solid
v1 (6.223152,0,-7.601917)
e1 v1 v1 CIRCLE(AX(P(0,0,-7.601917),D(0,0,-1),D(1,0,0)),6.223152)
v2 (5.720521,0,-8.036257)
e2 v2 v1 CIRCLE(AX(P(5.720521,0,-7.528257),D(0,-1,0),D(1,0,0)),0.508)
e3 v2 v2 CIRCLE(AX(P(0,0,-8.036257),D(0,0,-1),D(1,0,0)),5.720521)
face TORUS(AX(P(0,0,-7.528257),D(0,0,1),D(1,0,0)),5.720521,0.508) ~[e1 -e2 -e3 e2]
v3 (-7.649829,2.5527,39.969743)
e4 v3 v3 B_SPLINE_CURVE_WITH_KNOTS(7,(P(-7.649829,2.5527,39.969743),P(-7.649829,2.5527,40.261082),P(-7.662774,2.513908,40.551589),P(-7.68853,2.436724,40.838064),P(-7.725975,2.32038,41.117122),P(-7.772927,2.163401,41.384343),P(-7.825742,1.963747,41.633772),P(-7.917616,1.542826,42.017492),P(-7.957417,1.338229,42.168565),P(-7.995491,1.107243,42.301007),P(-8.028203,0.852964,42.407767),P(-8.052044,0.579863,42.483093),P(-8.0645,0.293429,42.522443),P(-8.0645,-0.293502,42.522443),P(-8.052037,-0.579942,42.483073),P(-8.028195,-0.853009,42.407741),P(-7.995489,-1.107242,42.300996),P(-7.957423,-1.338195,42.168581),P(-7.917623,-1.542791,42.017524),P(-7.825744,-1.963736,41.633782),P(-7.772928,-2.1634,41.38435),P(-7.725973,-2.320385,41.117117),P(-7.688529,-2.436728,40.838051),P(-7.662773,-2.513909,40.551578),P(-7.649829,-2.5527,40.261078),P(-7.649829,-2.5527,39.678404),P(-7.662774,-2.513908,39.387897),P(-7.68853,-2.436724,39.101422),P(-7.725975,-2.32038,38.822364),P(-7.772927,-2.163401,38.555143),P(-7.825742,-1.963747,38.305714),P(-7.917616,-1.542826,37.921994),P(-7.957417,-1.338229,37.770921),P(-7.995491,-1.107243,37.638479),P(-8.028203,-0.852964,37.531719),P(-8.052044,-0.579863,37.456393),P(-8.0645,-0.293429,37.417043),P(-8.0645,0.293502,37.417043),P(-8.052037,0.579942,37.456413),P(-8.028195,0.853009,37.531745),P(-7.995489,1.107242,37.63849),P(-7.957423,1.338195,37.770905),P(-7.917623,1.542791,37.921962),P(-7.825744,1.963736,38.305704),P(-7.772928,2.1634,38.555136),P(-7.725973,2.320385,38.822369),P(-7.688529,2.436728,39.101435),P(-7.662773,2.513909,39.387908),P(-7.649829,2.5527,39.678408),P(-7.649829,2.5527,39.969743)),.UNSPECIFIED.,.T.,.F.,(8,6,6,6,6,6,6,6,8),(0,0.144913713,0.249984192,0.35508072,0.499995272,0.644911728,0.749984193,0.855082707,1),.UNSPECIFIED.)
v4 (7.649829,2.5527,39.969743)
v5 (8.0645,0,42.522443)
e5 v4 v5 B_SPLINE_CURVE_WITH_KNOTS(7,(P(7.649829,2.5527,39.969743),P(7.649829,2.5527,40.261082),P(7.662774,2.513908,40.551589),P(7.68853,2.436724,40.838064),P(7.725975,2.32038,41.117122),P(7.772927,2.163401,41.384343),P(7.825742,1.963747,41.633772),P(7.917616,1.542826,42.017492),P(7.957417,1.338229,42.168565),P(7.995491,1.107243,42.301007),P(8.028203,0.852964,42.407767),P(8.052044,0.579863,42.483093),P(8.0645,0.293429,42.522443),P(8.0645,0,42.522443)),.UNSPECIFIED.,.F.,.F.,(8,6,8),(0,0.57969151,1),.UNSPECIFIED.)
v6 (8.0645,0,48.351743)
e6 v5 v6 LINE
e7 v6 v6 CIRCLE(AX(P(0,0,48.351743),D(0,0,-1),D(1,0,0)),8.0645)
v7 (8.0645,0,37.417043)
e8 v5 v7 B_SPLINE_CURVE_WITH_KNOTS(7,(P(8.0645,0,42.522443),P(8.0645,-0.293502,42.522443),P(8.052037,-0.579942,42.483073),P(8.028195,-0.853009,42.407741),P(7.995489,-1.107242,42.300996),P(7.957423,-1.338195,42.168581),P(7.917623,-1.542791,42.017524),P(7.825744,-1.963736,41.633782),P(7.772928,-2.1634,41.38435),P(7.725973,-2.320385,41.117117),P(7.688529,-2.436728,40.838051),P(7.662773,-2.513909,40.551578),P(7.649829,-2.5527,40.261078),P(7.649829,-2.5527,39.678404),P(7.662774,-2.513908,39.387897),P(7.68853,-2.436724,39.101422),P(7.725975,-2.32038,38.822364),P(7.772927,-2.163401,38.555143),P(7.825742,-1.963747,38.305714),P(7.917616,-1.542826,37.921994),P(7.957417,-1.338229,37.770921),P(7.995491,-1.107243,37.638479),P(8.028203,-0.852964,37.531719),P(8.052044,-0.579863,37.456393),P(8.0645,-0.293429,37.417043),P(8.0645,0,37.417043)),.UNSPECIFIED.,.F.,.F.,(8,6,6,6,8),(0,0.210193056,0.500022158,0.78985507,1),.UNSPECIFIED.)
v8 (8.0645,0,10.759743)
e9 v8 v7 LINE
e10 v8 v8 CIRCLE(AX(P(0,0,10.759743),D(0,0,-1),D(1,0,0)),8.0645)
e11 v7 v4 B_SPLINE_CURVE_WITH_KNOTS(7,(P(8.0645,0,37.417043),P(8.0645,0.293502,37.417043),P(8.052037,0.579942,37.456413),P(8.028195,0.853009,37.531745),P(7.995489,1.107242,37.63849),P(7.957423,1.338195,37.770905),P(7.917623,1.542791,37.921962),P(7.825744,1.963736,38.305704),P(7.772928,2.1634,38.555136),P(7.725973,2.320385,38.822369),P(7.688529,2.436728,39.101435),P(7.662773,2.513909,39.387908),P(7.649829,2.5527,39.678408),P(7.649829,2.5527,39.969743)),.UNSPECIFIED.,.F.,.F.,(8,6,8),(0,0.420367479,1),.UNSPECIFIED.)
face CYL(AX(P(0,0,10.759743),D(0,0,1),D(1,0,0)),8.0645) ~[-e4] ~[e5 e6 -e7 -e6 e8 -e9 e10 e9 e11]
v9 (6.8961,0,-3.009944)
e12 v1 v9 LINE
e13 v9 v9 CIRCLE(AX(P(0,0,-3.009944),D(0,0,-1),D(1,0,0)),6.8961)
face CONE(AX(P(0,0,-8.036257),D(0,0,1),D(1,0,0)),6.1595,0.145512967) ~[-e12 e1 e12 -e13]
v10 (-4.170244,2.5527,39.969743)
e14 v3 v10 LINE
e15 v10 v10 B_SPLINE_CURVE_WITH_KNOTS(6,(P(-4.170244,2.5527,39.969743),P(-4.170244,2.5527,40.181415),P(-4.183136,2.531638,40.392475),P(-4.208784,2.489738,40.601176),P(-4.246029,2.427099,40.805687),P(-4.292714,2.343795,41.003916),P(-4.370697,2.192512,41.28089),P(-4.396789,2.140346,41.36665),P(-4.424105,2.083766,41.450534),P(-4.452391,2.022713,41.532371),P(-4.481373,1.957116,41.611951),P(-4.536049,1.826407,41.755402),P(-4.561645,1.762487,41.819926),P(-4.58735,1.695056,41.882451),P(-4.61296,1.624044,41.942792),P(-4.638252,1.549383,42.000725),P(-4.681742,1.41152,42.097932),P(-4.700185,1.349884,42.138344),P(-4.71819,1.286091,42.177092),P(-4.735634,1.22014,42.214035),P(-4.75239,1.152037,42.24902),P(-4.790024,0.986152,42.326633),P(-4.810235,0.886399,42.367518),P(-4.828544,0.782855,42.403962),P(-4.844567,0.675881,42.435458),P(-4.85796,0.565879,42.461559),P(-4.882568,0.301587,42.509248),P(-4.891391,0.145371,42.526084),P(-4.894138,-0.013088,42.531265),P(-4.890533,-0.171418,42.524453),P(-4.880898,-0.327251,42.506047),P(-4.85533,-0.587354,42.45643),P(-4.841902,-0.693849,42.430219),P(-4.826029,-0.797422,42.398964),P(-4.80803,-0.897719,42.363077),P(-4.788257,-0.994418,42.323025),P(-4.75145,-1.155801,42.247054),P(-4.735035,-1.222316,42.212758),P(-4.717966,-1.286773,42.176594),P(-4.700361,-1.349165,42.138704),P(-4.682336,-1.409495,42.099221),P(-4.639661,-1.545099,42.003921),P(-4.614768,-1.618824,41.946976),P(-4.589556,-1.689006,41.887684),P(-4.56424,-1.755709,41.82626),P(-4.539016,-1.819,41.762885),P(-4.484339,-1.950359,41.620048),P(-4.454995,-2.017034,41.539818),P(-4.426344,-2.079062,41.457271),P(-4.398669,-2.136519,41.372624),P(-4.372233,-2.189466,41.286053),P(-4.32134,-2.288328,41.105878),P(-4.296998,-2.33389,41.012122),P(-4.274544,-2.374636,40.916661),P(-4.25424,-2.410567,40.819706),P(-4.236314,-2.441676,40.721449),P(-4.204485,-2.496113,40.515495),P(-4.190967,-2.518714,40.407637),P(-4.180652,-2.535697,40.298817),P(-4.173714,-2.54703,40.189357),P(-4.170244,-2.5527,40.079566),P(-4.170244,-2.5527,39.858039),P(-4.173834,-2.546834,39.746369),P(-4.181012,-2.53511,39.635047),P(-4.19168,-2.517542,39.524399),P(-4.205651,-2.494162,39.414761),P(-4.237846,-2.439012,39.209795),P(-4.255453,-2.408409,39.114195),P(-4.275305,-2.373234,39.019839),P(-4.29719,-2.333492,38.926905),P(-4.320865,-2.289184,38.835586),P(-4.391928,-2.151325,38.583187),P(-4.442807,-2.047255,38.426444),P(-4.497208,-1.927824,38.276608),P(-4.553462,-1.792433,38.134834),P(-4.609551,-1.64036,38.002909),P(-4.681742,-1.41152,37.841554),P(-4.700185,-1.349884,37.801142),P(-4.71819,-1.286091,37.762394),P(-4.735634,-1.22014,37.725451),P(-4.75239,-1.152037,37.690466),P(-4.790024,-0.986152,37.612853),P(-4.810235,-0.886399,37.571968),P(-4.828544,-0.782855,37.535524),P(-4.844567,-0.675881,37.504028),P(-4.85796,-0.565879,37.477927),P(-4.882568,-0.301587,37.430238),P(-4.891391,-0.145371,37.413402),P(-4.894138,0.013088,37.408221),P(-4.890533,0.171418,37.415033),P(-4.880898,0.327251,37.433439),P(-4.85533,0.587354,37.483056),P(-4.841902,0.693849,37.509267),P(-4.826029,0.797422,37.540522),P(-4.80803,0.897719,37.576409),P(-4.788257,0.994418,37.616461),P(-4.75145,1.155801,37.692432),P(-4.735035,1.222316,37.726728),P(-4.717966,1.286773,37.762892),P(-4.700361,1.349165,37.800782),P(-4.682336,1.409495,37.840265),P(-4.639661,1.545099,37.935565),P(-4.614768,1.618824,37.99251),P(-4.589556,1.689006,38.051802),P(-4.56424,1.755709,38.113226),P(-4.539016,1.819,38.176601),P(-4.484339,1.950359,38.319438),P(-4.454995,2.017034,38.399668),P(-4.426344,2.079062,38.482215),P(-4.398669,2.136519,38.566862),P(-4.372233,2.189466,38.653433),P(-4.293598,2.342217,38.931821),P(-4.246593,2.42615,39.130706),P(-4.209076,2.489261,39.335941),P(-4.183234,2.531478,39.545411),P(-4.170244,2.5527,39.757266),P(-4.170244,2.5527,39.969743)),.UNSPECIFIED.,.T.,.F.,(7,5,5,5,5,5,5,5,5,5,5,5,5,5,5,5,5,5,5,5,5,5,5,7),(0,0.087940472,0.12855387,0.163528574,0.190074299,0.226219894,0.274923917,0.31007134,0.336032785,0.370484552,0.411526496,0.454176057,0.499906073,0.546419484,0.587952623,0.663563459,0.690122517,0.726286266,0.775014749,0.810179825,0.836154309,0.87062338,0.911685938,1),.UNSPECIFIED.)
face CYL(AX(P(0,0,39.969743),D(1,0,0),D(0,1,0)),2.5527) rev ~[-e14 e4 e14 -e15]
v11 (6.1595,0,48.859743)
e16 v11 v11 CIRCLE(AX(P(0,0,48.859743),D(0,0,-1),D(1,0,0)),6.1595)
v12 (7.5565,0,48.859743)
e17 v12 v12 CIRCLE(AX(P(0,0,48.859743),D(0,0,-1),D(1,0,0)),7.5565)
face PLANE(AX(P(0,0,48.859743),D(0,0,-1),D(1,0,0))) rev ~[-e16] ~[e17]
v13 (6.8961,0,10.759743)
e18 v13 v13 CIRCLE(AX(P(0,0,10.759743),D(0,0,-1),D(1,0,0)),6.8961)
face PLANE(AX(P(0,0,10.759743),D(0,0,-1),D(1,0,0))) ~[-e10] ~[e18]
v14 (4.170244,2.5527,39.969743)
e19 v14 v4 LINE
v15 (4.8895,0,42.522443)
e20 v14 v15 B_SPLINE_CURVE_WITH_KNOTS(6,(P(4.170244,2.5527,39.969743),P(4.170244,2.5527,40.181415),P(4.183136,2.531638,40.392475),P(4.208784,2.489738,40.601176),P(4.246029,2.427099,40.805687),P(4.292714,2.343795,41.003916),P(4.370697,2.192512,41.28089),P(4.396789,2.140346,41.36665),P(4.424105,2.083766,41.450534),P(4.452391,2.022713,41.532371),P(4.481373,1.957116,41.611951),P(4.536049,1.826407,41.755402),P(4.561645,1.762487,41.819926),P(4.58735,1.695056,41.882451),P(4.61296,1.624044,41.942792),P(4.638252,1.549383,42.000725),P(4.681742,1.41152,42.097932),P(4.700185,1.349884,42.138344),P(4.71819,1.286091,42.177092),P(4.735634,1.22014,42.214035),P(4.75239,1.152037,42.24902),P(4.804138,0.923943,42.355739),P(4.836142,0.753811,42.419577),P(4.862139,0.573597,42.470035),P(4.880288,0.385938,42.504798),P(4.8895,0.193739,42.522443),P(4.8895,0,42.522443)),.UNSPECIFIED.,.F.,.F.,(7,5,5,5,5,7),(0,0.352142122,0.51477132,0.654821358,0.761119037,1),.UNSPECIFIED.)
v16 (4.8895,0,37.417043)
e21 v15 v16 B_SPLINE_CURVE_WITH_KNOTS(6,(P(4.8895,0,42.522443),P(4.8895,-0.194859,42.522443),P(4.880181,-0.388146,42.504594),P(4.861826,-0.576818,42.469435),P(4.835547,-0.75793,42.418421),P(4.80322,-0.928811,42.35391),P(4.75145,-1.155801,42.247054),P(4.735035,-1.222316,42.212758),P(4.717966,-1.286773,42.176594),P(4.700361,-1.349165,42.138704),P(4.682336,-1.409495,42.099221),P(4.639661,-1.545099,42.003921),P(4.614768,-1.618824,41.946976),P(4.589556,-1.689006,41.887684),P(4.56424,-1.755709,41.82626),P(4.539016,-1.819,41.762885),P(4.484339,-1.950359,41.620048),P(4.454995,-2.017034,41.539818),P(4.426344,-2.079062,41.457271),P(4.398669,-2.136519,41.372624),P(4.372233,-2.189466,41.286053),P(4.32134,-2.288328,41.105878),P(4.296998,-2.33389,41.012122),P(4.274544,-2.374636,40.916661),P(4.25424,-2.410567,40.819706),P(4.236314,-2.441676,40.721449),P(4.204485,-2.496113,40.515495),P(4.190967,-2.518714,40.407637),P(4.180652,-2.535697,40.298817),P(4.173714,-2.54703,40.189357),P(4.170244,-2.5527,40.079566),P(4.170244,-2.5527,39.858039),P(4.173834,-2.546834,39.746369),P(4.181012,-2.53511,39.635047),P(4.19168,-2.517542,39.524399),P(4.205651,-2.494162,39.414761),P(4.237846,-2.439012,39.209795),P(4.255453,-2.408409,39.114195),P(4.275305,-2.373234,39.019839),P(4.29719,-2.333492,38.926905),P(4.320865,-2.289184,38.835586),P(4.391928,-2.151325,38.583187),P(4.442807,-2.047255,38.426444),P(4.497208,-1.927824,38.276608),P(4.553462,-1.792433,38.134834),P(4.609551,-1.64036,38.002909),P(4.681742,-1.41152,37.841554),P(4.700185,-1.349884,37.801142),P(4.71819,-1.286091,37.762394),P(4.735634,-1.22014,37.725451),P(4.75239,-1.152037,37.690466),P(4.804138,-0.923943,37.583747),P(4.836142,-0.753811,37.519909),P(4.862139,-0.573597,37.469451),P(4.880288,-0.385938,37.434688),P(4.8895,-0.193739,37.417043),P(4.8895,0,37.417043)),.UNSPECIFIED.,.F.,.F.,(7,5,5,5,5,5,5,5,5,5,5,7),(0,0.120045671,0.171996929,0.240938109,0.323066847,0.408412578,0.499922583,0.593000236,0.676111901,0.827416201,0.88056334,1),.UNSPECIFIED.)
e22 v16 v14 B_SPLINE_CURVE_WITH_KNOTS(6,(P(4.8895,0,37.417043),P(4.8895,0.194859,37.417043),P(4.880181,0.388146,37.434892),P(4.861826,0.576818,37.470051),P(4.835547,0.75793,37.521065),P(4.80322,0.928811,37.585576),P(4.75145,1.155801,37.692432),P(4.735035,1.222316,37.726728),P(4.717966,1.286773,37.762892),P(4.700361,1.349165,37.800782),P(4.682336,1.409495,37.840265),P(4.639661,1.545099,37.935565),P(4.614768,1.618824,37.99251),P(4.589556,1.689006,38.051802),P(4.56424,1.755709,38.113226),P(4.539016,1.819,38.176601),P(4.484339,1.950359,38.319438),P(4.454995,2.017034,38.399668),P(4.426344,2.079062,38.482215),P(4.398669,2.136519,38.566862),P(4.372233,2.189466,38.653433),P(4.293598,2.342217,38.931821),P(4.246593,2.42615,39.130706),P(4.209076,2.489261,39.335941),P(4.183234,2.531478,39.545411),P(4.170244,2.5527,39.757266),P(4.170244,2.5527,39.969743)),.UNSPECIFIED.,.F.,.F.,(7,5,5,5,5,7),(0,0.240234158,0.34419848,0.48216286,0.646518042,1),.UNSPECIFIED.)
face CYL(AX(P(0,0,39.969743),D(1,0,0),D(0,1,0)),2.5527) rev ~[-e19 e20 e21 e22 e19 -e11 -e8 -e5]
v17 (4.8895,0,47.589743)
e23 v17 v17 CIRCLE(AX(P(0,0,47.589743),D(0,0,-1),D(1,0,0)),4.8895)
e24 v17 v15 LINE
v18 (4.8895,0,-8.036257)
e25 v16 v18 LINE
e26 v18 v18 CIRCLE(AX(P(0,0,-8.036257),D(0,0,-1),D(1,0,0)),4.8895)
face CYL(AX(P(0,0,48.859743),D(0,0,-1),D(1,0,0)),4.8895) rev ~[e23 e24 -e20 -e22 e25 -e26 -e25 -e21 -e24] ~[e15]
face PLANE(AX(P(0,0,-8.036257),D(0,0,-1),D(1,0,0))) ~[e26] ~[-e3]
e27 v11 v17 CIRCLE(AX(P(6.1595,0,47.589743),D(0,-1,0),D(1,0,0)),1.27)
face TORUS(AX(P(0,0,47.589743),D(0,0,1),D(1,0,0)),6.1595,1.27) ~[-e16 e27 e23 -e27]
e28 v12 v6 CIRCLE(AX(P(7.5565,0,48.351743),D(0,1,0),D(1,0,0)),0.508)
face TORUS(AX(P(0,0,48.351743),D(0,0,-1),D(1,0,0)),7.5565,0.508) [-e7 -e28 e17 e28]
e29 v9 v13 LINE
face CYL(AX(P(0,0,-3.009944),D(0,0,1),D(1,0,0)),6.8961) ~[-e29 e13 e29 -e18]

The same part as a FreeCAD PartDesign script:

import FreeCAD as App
import Part
import Sketcher

V = App.Vector
Q = App.Units.Quantity


def edges_at(feature, points):
    """Names of the edges that pass closest to the given points."""
    edges = feature.Shape.Edges
    near = lambda p: min(range(len(edges)), key=lambda i: edges[i].distToShape(Part.Vertex(*p))[0])
    return sorted({f"Edge{near(p) + 1}" for p in points})

doc = App.newDocument("Part")
params = doc.addObject("Spreadsheet::Sheet", "Params")
for row, (alias, value) in enumerate([
    ("sketch1_height", "1.5 in"),
    ("sketch1_length", "0.2 in"),
    ("sketch1_width", "0.05 in"),
    ("sketch1_height2", "2.24 in"),
    ("sketch1_width2", "0.046 in"),
    ("revolution_angle", "360 deg"),
    ("fillet_radius", "0.05 in"),
    ("fillet2_radius", "0.02 in"),
    ("sketch2_diameter", "0.201 in"),
    ("pocket1_length", "1 in"),
    ("fillet3_radius", "0.02 in"),
], start=1):
    params.set(f"A{row}", alias)
    params.set(f"B{row}", "=" + value)
    params.setAlias(f"B{row}", alias)

body = doc.addObject("PartDesign::Body", "Body")

sketch1 = body.newObject("Sketcher::SketchObject", "Sketch")
sketch1.AttachmentSupport = (doc.getObject("XZ_Plane"), [""])
sketch1.MapMode = "FlatFace"
sketch1.addGeometry([
    Part.LineSegment(V(6.2, -8, 0), V(6.9, -3, 0)),
    Part.LineSegment(V(6.9, -3, 0), V(6.9, 10.8, 0)),
    Part.LineSegment(V(6.9, 10.8, 0), V(8.1, 10.8, 0)),
    Part.LineSegment(V(8.1, 10.8, 0), V(8.1, 48.9, 0)),
    Part.LineSegment(V(8.1, 48.9, 0), V(4.9, 48.9, 0)),
    Part.LineSegment(V(4.9, 48.9, 0), V(4.9, -8, 0)),
    Part.LineSegment(V(4.9, -8, 0), V(6.2, -8, 0)),
], False)
sketch1.addConstraint([
    Sketcher.Constraint("Coincident", 0, 2, 1, 1),
    Sketcher.Constraint("Coincident", 1, 2, 2, 1),
    Sketcher.Constraint("Coincident", 2, 2, 3, 1),
    Sketcher.Constraint("Coincident", 3, 2, 4, 1),
    Sketcher.Constraint("Coincident", 4, 2, 5, 1),
    Sketcher.Constraint("Coincident", 5, 2, 6, 1),
    Sketcher.Constraint("Coincident", 6, 2, 0, 1),
    Sketcher.Constraint("Vertical", 1),
    Sketcher.Constraint("Horizontal", 2),
    Sketcher.Constraint("Vertical", 3),
    Sketcher.Constraint("Horizontal", 4),
    Sketcher.Constraint("Vertical", 5),
    Sketcher.Constraint("Horizontal", 6),
    Sketcher.Constraint("DistanceY", 3, 1, 3, 2, Q("1.5 in")),
    Sketcher.Constraint("Distance", 0, Q("0.2 in")),
    Sketcher.Constraint("DistanceX", 6, 1, 6, 2, Q("0.05 in")),
    Sketcher.Constraint("DistanceY", 5, 2, 5, 1, Q("2.24 in")),
    Sketcher.Constraint("DistanceX", 2, 1, 2, 2, Q("0.046 in")),
    Sketcher.Constraint("DistanceX", 4, 2, 4, 1, Q("0.125 in")),
    Sketcher.Constraint("DistanceX", -1, 1, 0, 2, Q("0.2715 in")),
    Sketcher.Constraint("DistanceY", 0, 2, -1, 1, Q("3.009944 mm")),
])
sketch1.setExpression("Constraints[13]", "Params.sketch1_height")
sketch1.setExpression("Constraints[14]", "Params.sketch1_length")
sketch1.setExpression("Constraints[15]", "Params.sketch1_width")
sketch1.setExpression("Constraints[16]", "Params.sketch1_height2")
sketch1.setExpression("Constraints[17]", "Params.sketch1_width2")
revolution = body.newObject("PartDesign::Revolution", "Revolution")
revolution.Profile = sketch1
revolution.ReferenceAxis = (sketch1, ["V_Axis"])
revolution.setExpression("Angle", "Params.revolution_angle")
doc.recompute()

fillet = body.newObject("PartDesign::Fillet", "Fillet")
fillet.Base = (revolution, edges_at(revolution, [(-4.889, 0, 48.86)]))
fillet.setExpression("Radius", "Params.fillet_radius")
doc.recompute()

fillet2 = body.newObject("PartDesign::Fillet", "Fillet001")
fillet2.Base = (fillet, edges_at(fillet, [(-8.065, 0, 48.86)]))
fillet2.setExpression("Radius", "Params.fillet2_radius")

sketch2 = body.newObject("Sketcher::SketchObject", "Sketch001")
sketch2.AttachmentSupport = (doc.getObject("YZ_Plane"), [""])
sketch2.MapMode = "FlatFace"
sketch2.addGeometry(Part.Circle(V(0, 40, 0), V(0, 0, 1), 2.6), False)
sketch2.addConstraint([
    Sketcher.Constraint("PointOnObject", 0, 3, -2),
    Sketcher.Constraint("Diameter", 0, Q("0.201 in")),
    Sketcher.Constraint("DistanceY", -1, 1, 0, 3, Q("39.969743 mm")),
])
sketch2.setExpression("Constraints[1]", "Params.sketch2_diameter")
pocket1 = body.newObject("PartDesign::Pocket", "Pocket")
pocket1.Profile = sketch2
pocket1.setExpression("Length", "Params.pocket1_length")
pocket1.Midplane = True
doc.recompute()

fillet3 = body.newObject("PartDesign::Fillet", "Fillet002")
fillet3.Base = (pocket1, edges_at(pocket1, [(-6.16, 0, -8.036)]))
fillet3.setExpression("Radius", "Params.fillet3_radius")

doc.recompute()
